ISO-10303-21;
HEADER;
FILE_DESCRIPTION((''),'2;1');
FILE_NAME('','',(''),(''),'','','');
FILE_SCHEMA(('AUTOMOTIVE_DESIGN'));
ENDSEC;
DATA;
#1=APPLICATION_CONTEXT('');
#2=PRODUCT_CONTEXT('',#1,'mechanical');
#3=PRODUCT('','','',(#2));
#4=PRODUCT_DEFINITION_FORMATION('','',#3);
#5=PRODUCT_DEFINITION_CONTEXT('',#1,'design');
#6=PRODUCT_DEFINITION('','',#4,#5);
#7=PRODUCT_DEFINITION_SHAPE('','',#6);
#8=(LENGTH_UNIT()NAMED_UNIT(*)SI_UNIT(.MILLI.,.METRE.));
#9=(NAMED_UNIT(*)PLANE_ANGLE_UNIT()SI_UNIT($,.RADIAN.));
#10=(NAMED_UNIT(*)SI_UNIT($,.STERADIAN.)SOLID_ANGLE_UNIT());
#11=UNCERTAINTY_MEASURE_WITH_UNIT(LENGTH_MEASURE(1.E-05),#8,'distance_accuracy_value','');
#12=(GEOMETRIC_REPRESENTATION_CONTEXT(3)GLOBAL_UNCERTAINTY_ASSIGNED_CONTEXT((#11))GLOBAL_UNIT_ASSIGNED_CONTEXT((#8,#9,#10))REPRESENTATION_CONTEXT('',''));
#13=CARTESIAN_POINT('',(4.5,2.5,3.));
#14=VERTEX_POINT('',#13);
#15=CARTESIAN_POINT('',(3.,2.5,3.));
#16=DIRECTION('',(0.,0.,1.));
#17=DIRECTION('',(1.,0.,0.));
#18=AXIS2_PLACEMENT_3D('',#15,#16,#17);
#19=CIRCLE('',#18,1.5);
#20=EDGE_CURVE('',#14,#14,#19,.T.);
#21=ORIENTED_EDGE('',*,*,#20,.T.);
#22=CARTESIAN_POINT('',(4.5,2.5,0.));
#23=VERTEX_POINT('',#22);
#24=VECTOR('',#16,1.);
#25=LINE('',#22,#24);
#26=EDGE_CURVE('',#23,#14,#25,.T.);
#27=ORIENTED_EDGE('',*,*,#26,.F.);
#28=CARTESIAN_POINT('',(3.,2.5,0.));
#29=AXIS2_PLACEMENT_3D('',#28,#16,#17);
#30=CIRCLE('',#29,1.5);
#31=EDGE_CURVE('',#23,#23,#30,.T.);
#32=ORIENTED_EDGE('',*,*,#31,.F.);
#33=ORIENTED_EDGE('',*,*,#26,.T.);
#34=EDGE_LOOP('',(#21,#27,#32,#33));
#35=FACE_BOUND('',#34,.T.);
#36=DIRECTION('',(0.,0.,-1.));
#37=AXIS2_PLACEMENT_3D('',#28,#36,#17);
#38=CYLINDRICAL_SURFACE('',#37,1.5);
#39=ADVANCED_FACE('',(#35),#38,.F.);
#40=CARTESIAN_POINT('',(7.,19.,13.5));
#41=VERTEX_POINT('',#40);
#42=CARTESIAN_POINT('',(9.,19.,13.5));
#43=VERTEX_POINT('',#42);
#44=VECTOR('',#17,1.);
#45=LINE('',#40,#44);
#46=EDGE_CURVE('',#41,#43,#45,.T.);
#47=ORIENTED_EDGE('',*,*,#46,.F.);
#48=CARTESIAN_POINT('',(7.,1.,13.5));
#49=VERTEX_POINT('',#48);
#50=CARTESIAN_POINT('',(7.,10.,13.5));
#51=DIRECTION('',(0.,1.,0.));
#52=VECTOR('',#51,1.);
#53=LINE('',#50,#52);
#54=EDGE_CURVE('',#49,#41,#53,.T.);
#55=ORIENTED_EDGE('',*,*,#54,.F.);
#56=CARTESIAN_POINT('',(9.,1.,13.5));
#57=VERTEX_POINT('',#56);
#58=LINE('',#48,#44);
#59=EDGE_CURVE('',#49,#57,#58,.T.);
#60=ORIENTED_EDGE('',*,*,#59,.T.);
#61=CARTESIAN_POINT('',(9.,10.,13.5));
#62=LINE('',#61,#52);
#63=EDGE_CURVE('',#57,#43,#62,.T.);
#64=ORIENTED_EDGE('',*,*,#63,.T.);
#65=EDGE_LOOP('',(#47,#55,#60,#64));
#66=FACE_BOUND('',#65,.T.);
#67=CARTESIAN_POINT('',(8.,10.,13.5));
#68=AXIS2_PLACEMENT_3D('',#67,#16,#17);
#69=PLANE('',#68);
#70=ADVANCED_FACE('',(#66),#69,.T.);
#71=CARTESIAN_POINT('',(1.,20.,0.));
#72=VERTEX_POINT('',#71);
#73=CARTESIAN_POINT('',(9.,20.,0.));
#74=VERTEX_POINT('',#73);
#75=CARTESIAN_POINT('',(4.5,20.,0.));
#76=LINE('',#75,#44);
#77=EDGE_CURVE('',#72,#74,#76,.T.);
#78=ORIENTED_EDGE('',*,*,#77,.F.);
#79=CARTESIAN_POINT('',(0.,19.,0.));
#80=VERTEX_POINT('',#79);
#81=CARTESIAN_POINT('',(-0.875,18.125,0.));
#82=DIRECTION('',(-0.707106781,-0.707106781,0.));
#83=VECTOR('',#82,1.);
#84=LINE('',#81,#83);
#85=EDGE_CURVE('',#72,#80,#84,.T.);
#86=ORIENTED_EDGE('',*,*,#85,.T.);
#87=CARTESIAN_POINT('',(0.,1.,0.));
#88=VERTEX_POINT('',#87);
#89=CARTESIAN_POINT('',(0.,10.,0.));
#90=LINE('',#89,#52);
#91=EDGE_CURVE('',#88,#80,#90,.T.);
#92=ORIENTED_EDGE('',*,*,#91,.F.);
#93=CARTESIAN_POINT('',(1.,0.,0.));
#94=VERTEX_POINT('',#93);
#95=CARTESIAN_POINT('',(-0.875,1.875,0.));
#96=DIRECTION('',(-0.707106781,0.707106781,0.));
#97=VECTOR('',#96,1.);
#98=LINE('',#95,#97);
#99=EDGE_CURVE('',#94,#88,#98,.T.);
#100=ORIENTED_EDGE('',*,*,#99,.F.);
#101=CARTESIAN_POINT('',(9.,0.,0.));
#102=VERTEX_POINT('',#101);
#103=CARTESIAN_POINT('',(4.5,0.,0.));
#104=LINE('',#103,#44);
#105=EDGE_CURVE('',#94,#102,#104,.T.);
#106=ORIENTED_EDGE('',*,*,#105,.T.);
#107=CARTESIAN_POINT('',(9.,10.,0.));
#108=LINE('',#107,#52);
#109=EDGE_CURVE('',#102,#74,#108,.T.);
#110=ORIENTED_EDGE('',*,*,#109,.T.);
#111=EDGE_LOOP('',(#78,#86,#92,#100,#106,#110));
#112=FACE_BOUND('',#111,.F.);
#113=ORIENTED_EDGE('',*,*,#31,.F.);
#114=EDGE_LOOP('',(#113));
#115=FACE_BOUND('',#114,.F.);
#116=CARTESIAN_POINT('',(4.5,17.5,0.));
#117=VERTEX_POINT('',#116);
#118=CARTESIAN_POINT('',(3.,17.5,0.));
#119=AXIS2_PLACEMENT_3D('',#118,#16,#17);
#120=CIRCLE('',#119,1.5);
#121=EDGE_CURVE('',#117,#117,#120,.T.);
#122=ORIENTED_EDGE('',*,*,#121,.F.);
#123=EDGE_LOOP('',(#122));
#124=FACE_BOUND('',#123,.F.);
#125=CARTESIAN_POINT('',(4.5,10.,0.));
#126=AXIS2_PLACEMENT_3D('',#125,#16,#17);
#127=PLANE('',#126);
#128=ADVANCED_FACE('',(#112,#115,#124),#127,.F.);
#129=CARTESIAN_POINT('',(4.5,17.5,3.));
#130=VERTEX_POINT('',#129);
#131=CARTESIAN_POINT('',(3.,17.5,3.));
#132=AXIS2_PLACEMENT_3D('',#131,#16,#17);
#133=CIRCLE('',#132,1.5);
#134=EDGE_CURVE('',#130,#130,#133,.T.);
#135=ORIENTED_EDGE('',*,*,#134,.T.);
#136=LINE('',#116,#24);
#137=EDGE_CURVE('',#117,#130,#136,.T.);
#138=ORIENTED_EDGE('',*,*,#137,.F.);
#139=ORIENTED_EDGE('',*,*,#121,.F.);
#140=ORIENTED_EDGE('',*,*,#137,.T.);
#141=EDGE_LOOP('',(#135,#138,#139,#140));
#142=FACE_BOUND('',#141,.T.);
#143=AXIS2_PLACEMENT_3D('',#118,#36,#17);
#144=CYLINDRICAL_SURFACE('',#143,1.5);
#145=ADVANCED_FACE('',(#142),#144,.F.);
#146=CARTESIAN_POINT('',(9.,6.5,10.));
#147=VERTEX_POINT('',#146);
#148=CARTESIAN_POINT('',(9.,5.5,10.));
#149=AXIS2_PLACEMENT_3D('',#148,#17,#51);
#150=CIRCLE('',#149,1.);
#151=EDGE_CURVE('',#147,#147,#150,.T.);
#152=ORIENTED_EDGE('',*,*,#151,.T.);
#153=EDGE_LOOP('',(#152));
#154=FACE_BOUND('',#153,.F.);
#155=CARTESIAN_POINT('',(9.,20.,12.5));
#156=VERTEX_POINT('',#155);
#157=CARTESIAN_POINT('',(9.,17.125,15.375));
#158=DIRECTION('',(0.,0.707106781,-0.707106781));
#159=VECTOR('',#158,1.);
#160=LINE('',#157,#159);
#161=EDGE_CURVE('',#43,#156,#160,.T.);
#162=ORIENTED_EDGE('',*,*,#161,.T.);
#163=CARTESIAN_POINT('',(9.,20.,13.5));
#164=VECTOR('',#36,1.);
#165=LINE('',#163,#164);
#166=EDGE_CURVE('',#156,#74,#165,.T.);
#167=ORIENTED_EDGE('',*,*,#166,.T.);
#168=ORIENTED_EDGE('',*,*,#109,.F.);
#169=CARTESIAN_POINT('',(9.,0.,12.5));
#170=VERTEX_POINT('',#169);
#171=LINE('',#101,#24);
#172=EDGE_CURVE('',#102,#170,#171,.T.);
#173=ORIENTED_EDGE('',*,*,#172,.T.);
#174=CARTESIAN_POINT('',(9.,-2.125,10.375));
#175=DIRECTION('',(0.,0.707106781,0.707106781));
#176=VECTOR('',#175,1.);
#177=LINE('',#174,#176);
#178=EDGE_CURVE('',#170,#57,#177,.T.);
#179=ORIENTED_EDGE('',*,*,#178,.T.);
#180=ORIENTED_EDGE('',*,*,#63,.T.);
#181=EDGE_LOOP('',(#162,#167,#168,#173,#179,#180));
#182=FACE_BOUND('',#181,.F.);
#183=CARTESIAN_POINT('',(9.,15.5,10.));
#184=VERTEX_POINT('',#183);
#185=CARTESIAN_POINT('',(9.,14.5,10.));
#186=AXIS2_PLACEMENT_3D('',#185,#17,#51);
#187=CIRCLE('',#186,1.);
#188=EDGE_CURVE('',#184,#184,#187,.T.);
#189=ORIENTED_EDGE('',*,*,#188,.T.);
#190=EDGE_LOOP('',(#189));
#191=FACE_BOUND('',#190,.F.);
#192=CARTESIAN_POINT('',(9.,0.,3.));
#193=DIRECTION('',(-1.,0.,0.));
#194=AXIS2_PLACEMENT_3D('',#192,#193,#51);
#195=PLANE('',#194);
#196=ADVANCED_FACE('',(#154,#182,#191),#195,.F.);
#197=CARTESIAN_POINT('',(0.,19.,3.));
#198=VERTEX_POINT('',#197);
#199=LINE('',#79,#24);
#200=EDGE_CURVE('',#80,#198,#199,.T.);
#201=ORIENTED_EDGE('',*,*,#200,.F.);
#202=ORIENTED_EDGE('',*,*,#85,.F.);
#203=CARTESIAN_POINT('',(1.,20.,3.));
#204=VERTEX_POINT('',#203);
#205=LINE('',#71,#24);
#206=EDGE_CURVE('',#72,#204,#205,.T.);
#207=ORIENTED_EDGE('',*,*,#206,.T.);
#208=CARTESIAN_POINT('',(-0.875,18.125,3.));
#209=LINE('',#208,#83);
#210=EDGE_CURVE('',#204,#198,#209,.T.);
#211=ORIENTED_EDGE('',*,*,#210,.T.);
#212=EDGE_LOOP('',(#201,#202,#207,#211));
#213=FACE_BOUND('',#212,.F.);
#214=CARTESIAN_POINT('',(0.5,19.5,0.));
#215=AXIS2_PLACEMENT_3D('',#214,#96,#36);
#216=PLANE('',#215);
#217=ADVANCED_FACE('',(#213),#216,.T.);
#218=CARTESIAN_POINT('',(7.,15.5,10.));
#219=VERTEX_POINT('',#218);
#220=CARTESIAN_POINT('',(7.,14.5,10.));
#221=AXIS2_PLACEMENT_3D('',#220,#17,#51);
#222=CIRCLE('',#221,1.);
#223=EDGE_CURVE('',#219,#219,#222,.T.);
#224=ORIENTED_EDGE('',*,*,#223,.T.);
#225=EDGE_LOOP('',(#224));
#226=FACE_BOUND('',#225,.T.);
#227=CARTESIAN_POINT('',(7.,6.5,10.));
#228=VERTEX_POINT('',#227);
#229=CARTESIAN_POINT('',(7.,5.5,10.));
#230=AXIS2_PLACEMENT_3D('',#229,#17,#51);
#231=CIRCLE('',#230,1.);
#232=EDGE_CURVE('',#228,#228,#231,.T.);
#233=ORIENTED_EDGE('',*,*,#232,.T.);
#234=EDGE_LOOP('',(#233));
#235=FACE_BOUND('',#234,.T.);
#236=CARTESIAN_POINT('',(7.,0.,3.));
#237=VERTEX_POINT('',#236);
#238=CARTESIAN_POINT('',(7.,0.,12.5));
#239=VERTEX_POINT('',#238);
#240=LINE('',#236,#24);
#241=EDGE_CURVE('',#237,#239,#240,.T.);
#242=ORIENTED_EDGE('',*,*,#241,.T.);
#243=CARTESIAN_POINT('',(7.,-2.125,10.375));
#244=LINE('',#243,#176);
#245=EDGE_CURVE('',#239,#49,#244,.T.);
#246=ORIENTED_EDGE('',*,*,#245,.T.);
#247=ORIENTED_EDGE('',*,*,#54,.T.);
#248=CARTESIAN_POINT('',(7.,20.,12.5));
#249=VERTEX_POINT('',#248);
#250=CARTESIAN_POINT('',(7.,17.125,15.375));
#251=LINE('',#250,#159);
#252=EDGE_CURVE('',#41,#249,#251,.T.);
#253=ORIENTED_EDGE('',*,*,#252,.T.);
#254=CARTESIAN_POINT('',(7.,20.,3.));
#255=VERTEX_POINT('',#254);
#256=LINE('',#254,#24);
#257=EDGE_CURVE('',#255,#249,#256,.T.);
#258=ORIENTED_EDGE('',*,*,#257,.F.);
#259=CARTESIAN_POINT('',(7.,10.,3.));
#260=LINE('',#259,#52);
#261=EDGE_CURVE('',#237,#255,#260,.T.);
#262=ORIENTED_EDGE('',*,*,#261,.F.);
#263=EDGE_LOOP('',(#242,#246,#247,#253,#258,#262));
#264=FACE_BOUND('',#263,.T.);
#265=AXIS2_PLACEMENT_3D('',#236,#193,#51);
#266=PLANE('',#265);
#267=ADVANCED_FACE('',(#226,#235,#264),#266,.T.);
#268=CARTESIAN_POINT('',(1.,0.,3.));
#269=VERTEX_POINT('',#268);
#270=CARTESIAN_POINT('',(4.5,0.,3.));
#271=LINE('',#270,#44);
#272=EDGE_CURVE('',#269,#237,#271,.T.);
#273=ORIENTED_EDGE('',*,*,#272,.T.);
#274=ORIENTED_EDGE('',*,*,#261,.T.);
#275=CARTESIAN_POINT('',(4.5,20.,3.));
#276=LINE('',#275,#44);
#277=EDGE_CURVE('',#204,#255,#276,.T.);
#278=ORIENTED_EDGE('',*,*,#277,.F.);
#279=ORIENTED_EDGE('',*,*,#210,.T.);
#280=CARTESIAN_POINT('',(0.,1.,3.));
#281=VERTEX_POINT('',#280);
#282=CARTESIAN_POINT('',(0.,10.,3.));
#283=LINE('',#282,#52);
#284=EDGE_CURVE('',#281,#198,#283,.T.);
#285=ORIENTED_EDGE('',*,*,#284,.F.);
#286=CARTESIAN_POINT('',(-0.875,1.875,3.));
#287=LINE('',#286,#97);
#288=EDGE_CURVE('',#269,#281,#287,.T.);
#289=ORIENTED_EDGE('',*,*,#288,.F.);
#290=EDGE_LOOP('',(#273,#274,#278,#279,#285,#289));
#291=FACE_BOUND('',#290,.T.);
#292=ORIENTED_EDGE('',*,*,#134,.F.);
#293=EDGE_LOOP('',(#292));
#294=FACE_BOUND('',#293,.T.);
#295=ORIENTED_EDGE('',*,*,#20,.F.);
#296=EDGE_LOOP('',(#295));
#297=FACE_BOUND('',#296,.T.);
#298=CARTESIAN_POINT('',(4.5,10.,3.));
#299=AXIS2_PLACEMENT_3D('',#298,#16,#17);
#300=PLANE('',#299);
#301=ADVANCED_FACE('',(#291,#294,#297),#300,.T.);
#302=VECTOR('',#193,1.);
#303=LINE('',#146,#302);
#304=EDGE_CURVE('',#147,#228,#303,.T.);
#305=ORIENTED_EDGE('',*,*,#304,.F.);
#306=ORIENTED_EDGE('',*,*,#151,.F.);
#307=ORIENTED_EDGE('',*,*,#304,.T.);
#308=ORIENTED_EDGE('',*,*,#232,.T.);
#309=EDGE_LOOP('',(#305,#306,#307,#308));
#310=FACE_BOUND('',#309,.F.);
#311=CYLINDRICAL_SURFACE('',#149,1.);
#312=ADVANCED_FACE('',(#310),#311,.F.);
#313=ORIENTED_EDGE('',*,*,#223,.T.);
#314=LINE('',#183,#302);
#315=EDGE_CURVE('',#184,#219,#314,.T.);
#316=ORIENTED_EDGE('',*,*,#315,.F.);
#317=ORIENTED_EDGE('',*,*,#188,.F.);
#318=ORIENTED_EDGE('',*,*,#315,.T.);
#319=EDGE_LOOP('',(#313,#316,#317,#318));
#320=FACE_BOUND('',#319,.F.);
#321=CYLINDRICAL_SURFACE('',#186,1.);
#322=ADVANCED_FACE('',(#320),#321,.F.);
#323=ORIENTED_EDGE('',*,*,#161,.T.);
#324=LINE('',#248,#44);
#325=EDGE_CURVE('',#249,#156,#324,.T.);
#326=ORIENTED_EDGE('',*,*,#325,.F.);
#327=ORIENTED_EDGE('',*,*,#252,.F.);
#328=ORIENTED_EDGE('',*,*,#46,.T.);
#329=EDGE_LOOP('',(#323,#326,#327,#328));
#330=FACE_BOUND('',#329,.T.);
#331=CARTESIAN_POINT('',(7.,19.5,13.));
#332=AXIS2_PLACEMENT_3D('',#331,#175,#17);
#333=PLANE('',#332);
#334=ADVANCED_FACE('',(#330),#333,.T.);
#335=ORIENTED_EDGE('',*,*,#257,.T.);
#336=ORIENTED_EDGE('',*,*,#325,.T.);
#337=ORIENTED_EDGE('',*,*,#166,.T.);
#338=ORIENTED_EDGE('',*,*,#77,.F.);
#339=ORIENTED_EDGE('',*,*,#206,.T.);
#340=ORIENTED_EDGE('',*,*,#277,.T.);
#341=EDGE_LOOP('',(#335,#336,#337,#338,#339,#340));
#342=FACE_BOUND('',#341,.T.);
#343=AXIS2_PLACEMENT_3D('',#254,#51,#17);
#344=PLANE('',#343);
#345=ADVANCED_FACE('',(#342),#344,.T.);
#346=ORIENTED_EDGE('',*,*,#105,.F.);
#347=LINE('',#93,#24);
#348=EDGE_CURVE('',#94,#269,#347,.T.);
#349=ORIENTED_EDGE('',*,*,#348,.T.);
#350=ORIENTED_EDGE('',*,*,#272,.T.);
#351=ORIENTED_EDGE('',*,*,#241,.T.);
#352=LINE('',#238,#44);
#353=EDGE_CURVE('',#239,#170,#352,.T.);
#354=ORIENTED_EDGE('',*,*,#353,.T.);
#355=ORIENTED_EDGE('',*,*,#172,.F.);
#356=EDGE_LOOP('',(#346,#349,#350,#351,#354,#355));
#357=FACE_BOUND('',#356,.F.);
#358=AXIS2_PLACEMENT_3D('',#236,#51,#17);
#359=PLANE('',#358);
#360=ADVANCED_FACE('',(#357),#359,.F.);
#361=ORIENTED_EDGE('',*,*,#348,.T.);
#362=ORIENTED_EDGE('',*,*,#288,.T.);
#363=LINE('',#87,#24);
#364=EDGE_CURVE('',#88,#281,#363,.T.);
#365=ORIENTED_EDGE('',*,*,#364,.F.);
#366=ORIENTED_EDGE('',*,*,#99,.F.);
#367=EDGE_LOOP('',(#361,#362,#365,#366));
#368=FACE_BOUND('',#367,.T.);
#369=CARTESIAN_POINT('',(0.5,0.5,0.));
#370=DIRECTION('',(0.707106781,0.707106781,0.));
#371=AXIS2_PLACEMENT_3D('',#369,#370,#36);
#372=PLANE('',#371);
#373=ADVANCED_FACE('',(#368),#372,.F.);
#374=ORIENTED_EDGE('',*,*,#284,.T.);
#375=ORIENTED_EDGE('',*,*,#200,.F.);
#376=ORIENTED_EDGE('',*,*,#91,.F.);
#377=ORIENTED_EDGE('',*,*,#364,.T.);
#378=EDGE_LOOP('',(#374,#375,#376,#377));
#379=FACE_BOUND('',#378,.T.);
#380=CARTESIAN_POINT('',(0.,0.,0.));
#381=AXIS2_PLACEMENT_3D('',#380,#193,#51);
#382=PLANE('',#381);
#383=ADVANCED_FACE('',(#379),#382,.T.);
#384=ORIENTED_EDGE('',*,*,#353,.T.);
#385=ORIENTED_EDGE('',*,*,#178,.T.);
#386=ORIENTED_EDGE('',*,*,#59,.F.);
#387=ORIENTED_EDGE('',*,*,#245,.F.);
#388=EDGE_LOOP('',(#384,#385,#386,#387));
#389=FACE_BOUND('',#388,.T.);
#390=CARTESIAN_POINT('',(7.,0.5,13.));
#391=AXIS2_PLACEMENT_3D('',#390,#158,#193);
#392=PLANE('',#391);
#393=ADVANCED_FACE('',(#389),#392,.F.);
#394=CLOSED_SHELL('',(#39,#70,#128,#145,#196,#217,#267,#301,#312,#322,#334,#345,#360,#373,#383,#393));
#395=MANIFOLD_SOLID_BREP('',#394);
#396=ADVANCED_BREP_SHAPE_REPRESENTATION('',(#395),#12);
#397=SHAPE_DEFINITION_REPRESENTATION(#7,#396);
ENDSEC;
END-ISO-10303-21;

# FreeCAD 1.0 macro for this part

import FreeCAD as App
import Part
import Sketcher

V = App.Vector
Q = App.Units.Quantity


def edges_at(feature, points):
    """Names of the edges that pass closest to the given points."""
    edges = feature.Shape.Edges
    near = lambda p: min(range(len(edges)), key=lambda i: edges[i].distToShape(Part.Vertex(*p))[0])
    return sorted({f"Edge{near(p) + 1}" for p in points})


def add_polygon(sketch, points):
    """Adds a closed chain of lines whose ends are joined by coincident constraints."""
    first, n = sketch.GeometryCount, len(points)
    for a, b in zip(points, points[1:] + points[:1]):
        sketch.addGeometry(Part.LineSegment(App.Vector(*a, 0), App.Vector(*b, 0)), False)
    for i in range(n):
        sketch.addConstraint(Sketcher.Constraint("Coincident", first + i, 2, first + (i + 1) % n, 1))

doc = App.newDocument("Part")
body = doc.addObject("PartDesign::Body", "Body")

# Sketch on XY plane
sketch1 = body.newObject("Sketcher::SketchObject", "Sketch")
sketch1.AttachmentSupport = (doc.getObject("XY_Plane"), [""])
sketch1.MapMode = "FlatFace"
add_polygon(sketch1, [(0, 20), (0, 0), (9, 0), (9, 20)])  # lines 0-3
sketch1.addGeometry(Part.Circle(V(3, 2.5, 0), V(0, 0, 1), 1.5), False)  # 4
sketch1.addGeometry(Part.Circle(V(3, 17.5, 0), V(0, 0, 1), 1.5), False)  # 5
sketch1.addConstraint([
    Sketcher.Constraint("Vertical", 0),
    Sketcher.Constraint("Horizontal", 1),
    Sketcher.Constraint("Vertical", 2),
    Sketcher.Constraint("Horizontal", 3),
    Sketcher.Constraint("Coincident", 0, 2, -1, 1),
    Sketcher.Constraint("Equal", 4, 5),
    Sketcher.Constraint("Vertical", 4, 3, 5, 3),
    Sketcher.Constraint("Diameter", 4, Q("3 mm")),
    Sketcher.Constraint("DistanceX", 1, 1, 1, 2, Q("9 mm")),
    Sketcher.Constraint("DistanceY", 0, 2, 0, 1, Q("20 mm")),
    Sketcher.Constraint("DistanceX", -1, 1, 4, 3, Q("3 mm")),
    Sketcher.Constraint("DistanceY", 4, 3, 5, 3, Q("15 mm")),
    Sketcher.Constraint("DistanceY", -1, 1, 4, 3, Q("2.5 mm")),
])
pad1 = body.newObject("PartDesign::Pad", "Pad")
pad1.Profile = sketch1
pad1.Length = 3

# Sketch on XY plane
sketch2 = body.newObject("Sketcher::SketchObject", "Sketch001")
sketch2.AttachmentSupport = (doc.getObject("XY_Plane"), [""])
sketch2.MapMode = "FlatFace"
sketch2.AttachmentOffset = App.Placement(V(0, 0, 3), App.Rotation())
add_polygon(sketch2, [(7, 20), (7, 0), (9, 0), (9, 20)])  # lines 0-3
sketch2.addConstraint([
    Sketcher.Constraint("Vertical", 0),
    Sketcher.Constraint("Horizontal", 1),
    Sketcher.Constraint("Vertical", 2),
    Sketcher.Constraint("Horizontal", 3),
    Sketcher.Constraint("PointOnObject", 0, 2, -1),
    Sketcher.Constraint("DistanceX", 1, 1, 1, 2, Q("2 mm")),
    Sketcher.Constraint("DistanceY", 0, 2, 0, 1, Q("20 mm")),
    Sketcher.Constraint("DistanceX", -1, 1, 0, 2, Q("7 mm")),
])
pad2 = body.newObject("PartDesign::Pad", "Pad001")
pad2.Profile = sketch2
pad2.Length = 10.5

# Sketch on YZ plane
sketch3 = body.newObject("Sketcher::SketchObject", "Sketch002")
sketch3.AttachmentSupport = (doc.getObject("YZ_Plane"), [""])
sketch3.MapMode = "FlatFace"
sketch3.AttachmentOffset = App.Placement(V(0, 0, 9), App.Rotation())
sketch3.addGeometry([
    Part.Circle(V(5.5, 10, 0), V(0, 0, 1), 1),
    Part.Circle(V(14.5, 10, 0), V(0, 0, 1), 1),
], False)
sketch3.addConstraint([
    Sketcher.Constraint("Equal", 0, 1),
    Sketcher.Constraint("Horizontal", 0, 3, 1, 3),
    Sketcher.Constraint("Diameter", 0, Q("2 mm")),
    Sketcher.Constraint("DistanceY", -1, 1, 0, 3, Q("10 mm")),
    Sketcher.Constraint("DistanceX", 0, 3, 1, 3, Q("9 mm")),
    Sketcher.Constraint("DistanceX", -1, 1, 0, 3, Q("5.5 mm")),
])
pocket1 = body.newObject("PartDesign::Pocket", "Pocket")
pocket1.Profile = sketch3
pocket1.Length = 5
doc.recompute()

chamfer = body.newObject("PartDesign::Chamfer", "Chamfer")
chamfer.Base = (pocket1, edges_at(pocket1, [
    (8, 0, 13.5),
    (8, 20, 13.5),
    (0, 0, 1.5),
    (0, 20, 1.5),
]))
chamfer.Size = 1

doc.recompute()
